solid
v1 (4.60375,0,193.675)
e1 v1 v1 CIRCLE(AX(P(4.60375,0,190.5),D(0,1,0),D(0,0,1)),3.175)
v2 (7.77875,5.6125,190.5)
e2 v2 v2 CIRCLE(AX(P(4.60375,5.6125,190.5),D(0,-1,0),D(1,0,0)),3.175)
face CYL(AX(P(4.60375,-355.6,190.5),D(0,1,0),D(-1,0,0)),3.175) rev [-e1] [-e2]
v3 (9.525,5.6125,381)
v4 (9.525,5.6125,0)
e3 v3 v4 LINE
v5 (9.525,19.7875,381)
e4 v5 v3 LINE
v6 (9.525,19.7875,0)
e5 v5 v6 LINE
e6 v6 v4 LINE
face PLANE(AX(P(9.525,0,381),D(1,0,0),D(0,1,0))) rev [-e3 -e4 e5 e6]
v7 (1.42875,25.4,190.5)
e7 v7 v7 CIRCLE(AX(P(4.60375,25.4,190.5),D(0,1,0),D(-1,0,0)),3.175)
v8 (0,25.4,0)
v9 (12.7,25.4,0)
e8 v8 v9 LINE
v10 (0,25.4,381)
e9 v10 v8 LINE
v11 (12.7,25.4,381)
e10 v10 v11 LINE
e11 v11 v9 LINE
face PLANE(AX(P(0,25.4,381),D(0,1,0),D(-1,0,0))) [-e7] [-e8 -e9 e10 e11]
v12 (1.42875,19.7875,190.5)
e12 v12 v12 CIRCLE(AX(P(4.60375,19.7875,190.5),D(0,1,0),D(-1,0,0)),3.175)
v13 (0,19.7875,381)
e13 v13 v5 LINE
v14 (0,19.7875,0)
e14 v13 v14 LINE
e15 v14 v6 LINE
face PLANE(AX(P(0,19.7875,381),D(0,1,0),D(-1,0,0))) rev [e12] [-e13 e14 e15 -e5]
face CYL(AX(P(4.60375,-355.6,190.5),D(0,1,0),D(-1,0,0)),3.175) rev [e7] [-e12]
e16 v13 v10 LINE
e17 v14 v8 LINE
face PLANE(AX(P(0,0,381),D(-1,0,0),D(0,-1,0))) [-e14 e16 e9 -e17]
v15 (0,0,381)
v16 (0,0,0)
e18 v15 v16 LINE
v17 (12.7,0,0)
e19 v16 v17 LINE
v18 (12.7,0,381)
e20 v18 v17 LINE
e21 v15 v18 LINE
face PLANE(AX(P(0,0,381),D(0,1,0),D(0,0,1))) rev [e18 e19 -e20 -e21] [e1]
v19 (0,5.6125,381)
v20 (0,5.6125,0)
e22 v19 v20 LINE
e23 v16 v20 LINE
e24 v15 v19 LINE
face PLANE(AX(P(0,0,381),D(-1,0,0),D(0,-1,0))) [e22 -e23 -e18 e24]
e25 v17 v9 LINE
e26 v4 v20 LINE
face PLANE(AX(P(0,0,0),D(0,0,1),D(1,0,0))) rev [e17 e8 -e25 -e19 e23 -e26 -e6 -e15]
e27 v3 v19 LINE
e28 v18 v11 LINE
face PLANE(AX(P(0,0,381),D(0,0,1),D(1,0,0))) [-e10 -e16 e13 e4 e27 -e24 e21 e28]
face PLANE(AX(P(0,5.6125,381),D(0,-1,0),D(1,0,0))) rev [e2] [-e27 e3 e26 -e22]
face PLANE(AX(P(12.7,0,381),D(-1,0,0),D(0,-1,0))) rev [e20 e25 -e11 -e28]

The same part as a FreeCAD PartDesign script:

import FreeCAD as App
import Part
import Sketcher
Q = App.Units.Quantity

doc = App.newDocument("Part")
body = doc.addObject("PartDesign::Body", "Body")

# Sketch on XY plane
sketch1 = body.newObject("Sketcher::SketchObject", "Sketch")
sketch1.AttachmentSupport = (doc.getObject("XY_Plane"), [""])
sketch1.MapMode = "FlatFace"
sketch1.addGeometry([
    Part.LineSegment(App.Vector(0, 25, 0), App.Vector(0, 20, 0)),  # 0
    Part.LineSegment(App.Vector(0, 20, 0), App.Vector(10, 20, 0)),  # 1
    Part.LineSegment(App.Vector(10, 20, 0), App.Vector(10, 6, 0)),  # 2
    Part.LineSegment(App.Vector(10, 6, 0), App.Vector(0, 6, 0)),  # 3
    Part.LineSegment(App.Vector(0, 6, 0), App.Vector(0, 0, 0)),  # 4
    Part.LineSegment(App.Vector(0, 0, 0), App.Vector(13, 0, 0)),  # 5
    Part.LineSegment(App.Vector(13, 0, 0), App.Vector(13, 25, 0)),  # 6
    Part.LineSegment(App.Vector(13, 25, 0), App.Vector(0, 25, 0)),  # 7
], False)
sketch1.addConstraint([
    Sketcher.Constraint("Coincident", 0, 2, 1, 1),
    Sketcher.Constraint("Coincident", 1, 2, 2, 1),
    Sketcher.Constraint("Coincident", 2, 2, 3, 1),
    Sketcher.Constraint("Coincident", 3, 2, 4, 1),
    Sketcher.Constraint("Coincident", 4, 2, 5, 1),
    Sketcher.Constraint("Coincident", 5, 2, 6, 1),
    Sketcher.Constraint("Coincident", 6, 2, 7, 1),
    Sketcher.Constraint("Coincident", 7, 2, 0, 1),
    Sketcher.Constraint("Vertical", 0),
    Sketcher.Constraint("Horizontal", 1),
    Sketcher.Constraint("Vertical", 2),
    Sketcher.Constraint("Horizontal", 3),
    Sketcher.Constraint("Vertical", 4),
    Sketcher.Constraint("Horizontal", 5),
    Sketcher.Constraint("Vertical", 6),
    Sketcher.Constraint("Horizontal", 7),
    Sketcher.Constraint("Coincident", 4, 2, -1, 1),
    Sketcher.Constraint("PointOnObject", 0, 2, -2),
    Sketcher.Constraint("Equal", 0, 4),
    Sketcher.Constraint("DistanceY", 6, 1, 6, 2, Q("1 in")),
    Sketcher.Constraint("DistanceX", 5, 1, 5, 2, Q("0.5 in")),
    Sketcher.Constraint("DistanceX", 1, 1, 1, 2, Q("0.375 in")),
    Sketcher.Constraint("DistanceY", 0, 2, 0, 1, Q("5.6125 mm")),
])
pad1 = body.newObject("PartDesign::Pad", "Pad")
pad1.Profile = sketch1
pad1.Length = Q("15 in")

# Sketch on XZ plane
sketch2 = body.newObject("Sketcher::SketchObject", "Sketch001")
sketch2.AttachmentSupport = (doc.getObject("XZ_Plane"), [""])
sketch2.MapMode = "FlatFace"
sketch2.AttachmentOffset = App.Placement(App.Vector(0, 0, -1 * 25.4), App.Rotation())
sketch2.addGeometry(Part.Circle(App.Vector(4.6, 190.5, 0), App.Vector(0, 0, 1), 3.2), False)
sketch2.addConstraint([
    Sketcher.Constraint("Diameter", 0, Q("0.25 in")),
    Sketcher.Constraint("DistanceY", -1, 1, 0, 3, Q("7.5 in")),
    Sketcher.Constraint("DistanceX", -1, 1, 0, 3, Q("4.60375 mm")),
])
pocket1 = body.newObject("PartDesign::Pocket", "Pocket")
pocket1.Profile = sketch2
pocket1.Length = Q("15 in")
pocket1.Reversed = True

doc.recompute()
